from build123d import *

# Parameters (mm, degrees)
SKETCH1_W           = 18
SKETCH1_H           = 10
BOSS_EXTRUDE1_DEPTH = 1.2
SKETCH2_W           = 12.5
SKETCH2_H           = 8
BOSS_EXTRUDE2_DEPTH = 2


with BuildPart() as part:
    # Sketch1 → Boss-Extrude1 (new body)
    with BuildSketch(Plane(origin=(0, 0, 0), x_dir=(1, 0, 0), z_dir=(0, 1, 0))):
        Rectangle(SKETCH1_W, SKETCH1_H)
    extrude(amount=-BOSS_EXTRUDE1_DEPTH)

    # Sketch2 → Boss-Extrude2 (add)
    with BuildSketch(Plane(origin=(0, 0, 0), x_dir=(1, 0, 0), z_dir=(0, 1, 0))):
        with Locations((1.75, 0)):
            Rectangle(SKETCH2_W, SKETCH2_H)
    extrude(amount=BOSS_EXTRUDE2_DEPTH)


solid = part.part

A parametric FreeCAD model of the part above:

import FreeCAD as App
import Part
import Sketcher
from FreeCAD import Vector
Q = App.Units.Quantity

doc = App.newDocument("Part")
params = doc.addObject("Spreadsheet::Sheet", "Params")
for row, (alias, value) in enumerate([
    ("sketch1_width", "18 mm"),
    ("sketch1_height", "10 mm"),
    ("pad1_length", "1.2 mm"),
    ("sketch2_height", "8 mm"),
    ("sketch2_width", "12.5 mm"),
    ("pad2_length", "2 mm"),
], start=1):
    params.set(f"A{row}", alias)
    params.set(f"B{row}", "=" + value)
    params.setAlias(f"B{row}", alias)

body = doc.addObject("PartDesign::Body", "Body")

sketch1 = doc.addObject("Sketcher::SketchObject", "Sketch")
body.addObject(sketch1)
sketch1.AttachmentSupport = (doc.XZ_Plane, [""])
sketch1.MapMode = "FlatFace"
sketch1.addGeometry([
    Part.LineSegment(Vector(-9, -5, 0), Vector(-9, 5, 0)),
    Part.LineSegment(Vector(-9, 5, 0), Vector(9, 5, 0)),
    Part.LineSegment(Vector(9, 5, 0), Vector(9, -5, 0)),
    Part.LineSegment(Vector(9, -5, 0), Vector(-9, -5, 0)),
], False)
sketch1.addConstraint([
    Sketcher.Constraint("Coincident", 0, 2, 1, 1),
    Sketcher.Constraint("Coincident", 1, 2, 2, 1),
    Sketcher.Constraint("Coincident", 2, 2, 3, 1),
    Sketcher.Constraint("Coincident", 3, 2, 0, 1),
    Sketcher.Constraint("Vertical", 0),
    Sketcher.Constraint("Horizontal", 1),
    Sketcher.Constraint("Vertical", 2),
    Sketcher.Constraint("Horizontal", 3),
    Sketcher.Constraint("Symmetric", 0, 2, 2, 2, -1, 1),
    Sketcher.Constraint("DistanceX", 1, 1, 1, 2, Q("18 mm")),
    Sketcher.Constraint("DistanceY", 0, 1, 0, 2, Q("10 mm")),
])
sketch1.setExpression("Constraints[9]", "Params.sketch1_width")
sketch1.setExpression("Constraints[10]", "Params.sketch1_height")
pad1 = doc.addObject("PartDesign::Pad", "Pad")
body.addObject(pad1)
pad1.Profile = sketch1
pad1.setExpression("Length", "Params.pad1_length")

sketch2 = doc.addObject("Sketcher::SketchObject", "Sketch001")
body.addObject(sketch2)
sketch2.AttachmentSupport = (doc.XZ_Plane, [""])
sketch2.MapMode = "FlatFace"
sketch2.addGeometry([
    Part.LineSegment(Vector(-4, -4, 0), Vector(-4, 4, 0)),
    Part.LineSegment(Vector(-4, 4, 0), Vector(8, 4, 0)),
    Part.LineSegment(Vector(8, 4, 0), Vector(8, -4, 0)),
    Part.LineSegment(Vector(8, -4, 0), Vector(-4, -4, 0)),
], False)
sketch2.addConstraint([
    Sketcher.Constraint("Coincident", 0, 2, 1, 1),
    Sketcher.Constraint("Coincident", 1, 2, 2, 1),
    Sketcher.Constraint("Coincident", 2, 2, 3, 1),
    Sketcher.Constraint("Coincident", 3, 2, 0, 1),
    Sketcher.Constraint("Vertical", 0),
    Sketcher.Constraint("Horizontal", 1),
    Sketcher.Constraint("Vertical", 2),
    Sketcher.Constraint("Horizontal", 3),
    Sketcher.Constraint("DistanceY", 0, 1, 0, 2, Q("8 mm")),
    Sketcher.Constraint("DistanceX", 1, 1, 1, 2, Q("12.5 mm")),
    Sketcher.Constraint("DistanceY", -1, 1, 0, 2, Q("4 mm")),
    Sketcher.Constraint("DistanceX", -1, 1, 1, 2, Q("8 mm")),
])
sketch2.setExpression("Constraints[8]", "Params.sketch2_height")
sketch2.setExpression("Constraints[9]", "Params.sketch2_width")
pad2 = doc.addObject("PartDesign::Pad", "Pad001")
body.addObject(pad2)
pad2.Profile = sketch2
pad2.setExpression("Length", "Params.pad2_length")
pad2.Reversed = True

doc.recompute()
